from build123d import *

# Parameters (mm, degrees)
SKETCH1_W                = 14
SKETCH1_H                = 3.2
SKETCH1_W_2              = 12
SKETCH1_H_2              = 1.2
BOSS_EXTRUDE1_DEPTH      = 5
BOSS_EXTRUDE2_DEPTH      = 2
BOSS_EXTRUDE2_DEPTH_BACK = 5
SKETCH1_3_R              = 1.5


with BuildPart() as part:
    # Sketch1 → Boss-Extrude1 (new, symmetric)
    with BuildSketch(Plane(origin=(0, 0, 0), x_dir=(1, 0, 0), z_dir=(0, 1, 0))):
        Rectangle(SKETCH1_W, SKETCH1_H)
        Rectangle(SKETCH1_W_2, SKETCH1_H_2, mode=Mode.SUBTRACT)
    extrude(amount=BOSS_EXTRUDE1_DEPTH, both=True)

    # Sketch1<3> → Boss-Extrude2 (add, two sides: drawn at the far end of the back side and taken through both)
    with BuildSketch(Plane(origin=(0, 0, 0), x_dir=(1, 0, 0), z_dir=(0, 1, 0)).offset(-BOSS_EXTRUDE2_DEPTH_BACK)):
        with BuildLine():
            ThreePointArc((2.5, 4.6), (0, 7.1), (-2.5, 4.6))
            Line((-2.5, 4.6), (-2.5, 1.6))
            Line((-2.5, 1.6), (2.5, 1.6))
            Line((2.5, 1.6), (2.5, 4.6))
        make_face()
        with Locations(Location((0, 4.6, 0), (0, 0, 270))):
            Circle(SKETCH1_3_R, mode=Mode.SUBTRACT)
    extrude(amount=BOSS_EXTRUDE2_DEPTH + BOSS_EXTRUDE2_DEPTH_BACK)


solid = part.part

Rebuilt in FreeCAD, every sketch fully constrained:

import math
import FreeCAD as App
import Part
import Sketcher
Q = App.Units.Quantity


def add_polygon(sketch, points):
    """Adds a closed chain of lines whose ends are joined by coincident constraints."""
    first, n = sketch.GeometryCount, len(points)
    for a, b in zip(points, points[1:] + points[:1]):
        sketch.addGeometry(Part.LineSegment(App.Vector(*a, 0), App.Vector(*b, 0)), False)
    for i in range(n):
        sketch.addConstraint(Sketcher.Constraint("Coincident", first + i, 2, first + (i + 1) % n, 1))

doc = App.newDocument("Part")
body = doc.addObject("PartDesign::Body", "Body")

sketch1 = body.newObject("Sketcher::SketchObject", "Sketch")
sketch1.AttachmentSupport = (doc.getObject("XZ_Plane"), [""])
sketch1.MapMode = "FlatFace"
add_polygon(sketch1, [(-7, -1.6), (-7, 1.6), (7, 1.6), (7, -1.6)])
add_polygon(sketch1, [(6, 0.6), (-6, 0.6), (-6, -0.6), (6, -0.6)])
sketch1.addConstraint([
    Sketcher.Constraint("Vertical", 0),
    Sketcher.Constraint("Horizontal", 1),
    Sketcher.Constraint("Vertical", 2),
    Sketcher.Constraint("Horizontal", 3),
    Sketcher.Constraint("Horizontal", 4),
    Sketcher.Constraint("Vertical", 5),
    Sketcher.Constraint("Horizontal", 6),
    Sketcher.Constraint("Vertical", 7),
    Sketcher.Constraint("Symmetric", 0, 2, 2, 2, -1, 1),
    Sketcher.Constraint("Symmetric", 4, 2, 6, 2, -1, 1),
    Sketcher.Constraint("DistanceX", 1, 1, 1, 2, Q("14 mm")),
    Sketcher.Constraint("DistanceX", 4, 2, 4, 1, Q("12 mm")),
    Sketcher.Constraint("DistanceY", 0, 1, 0, 2, Q("3.2 mm")),
    Sketcher.Constraint("DistanceY", 5, 2, 5, 1, Q("1.2 mm")),
])
pad1 = body.newObject("PartDesign::Pad", "Pad")
pad1.Profile = sketch1
pad1.Length = 10
pad1.Midplane = True

sketch2 = body.newObject("Sketcher::SketchObject", "Sketch001")
sketch2.AttachmentSupport = (doc.getObject("XZ_Plane"), [""])
sketch2.MapMode = "FlatFace"
sketch2.addGeometry([
    Part.ArcOfCircle(Part.Circle(App.Vector(0, -4.6, 0), App.Vector(0, 0, 1), 2.5), math.radians(180), math.radians(360)),
    Part.LineSegment(App.Vector(-2.5, -4.6, 0), App.Vector(-2.5, -1.6, 0)),
    Part.LineSegment(App.Vector(-2.5, -1.6, 0), App.Vector(2.5, -1.6, 0)),
    Part.LineSegment(App.Vector(2.5, -1.6, 0), App.Vector(2.5, -4.6, 0)),
    Part.Circle(App.Vector(0, -4.6, 0), App.Vector(0, 0, 1), 1.5),
], False)
sketch2.addConstraint([
    Sketcher.Constraint("Tangent", 0, 1, 1, 1),
    Sketcher.Constraint("Coincident", 1, 2, 2, 1),
    Sketcher.Constraint("Coincident", 2, 2, 3, 1),
    Sketcher.Constraint("Tangent", 3, 2, 0, 2),
    Sketcher.Constraint("Vertical", 1),
    Sketcher.Constraint("Horizontal", 2),
    Sketcher.Constraint("Vertical", 3),
    Sketcher.Constraint("Coincident", 4, 3, 0, 3),
    Sketcher.Constraint("PointOnObject", 0, 3, -2),
    Sketcher.Constraint("Diameter", 4, Q("3 mm")),
    Sketcher.Constraint("Radius", 0, Q("2.5 mm")),
    Sketcher.Constraint("DistanceY", 1, 1, 1, 2, Q("3 mm")),
    Sketcher.Constraint("DistanceY", 0, 3, -1, 1, Q("4.6 mm")),
])
pad2 = body.newObject("PartDesign::Pad", "Pad001")
pad2.Profile = sketch2
pad2.Type = "TwoLengths"
pad2.Length = 2
pad2.Length2 = 5
pad2.Reversed = True

doc.recompute()
